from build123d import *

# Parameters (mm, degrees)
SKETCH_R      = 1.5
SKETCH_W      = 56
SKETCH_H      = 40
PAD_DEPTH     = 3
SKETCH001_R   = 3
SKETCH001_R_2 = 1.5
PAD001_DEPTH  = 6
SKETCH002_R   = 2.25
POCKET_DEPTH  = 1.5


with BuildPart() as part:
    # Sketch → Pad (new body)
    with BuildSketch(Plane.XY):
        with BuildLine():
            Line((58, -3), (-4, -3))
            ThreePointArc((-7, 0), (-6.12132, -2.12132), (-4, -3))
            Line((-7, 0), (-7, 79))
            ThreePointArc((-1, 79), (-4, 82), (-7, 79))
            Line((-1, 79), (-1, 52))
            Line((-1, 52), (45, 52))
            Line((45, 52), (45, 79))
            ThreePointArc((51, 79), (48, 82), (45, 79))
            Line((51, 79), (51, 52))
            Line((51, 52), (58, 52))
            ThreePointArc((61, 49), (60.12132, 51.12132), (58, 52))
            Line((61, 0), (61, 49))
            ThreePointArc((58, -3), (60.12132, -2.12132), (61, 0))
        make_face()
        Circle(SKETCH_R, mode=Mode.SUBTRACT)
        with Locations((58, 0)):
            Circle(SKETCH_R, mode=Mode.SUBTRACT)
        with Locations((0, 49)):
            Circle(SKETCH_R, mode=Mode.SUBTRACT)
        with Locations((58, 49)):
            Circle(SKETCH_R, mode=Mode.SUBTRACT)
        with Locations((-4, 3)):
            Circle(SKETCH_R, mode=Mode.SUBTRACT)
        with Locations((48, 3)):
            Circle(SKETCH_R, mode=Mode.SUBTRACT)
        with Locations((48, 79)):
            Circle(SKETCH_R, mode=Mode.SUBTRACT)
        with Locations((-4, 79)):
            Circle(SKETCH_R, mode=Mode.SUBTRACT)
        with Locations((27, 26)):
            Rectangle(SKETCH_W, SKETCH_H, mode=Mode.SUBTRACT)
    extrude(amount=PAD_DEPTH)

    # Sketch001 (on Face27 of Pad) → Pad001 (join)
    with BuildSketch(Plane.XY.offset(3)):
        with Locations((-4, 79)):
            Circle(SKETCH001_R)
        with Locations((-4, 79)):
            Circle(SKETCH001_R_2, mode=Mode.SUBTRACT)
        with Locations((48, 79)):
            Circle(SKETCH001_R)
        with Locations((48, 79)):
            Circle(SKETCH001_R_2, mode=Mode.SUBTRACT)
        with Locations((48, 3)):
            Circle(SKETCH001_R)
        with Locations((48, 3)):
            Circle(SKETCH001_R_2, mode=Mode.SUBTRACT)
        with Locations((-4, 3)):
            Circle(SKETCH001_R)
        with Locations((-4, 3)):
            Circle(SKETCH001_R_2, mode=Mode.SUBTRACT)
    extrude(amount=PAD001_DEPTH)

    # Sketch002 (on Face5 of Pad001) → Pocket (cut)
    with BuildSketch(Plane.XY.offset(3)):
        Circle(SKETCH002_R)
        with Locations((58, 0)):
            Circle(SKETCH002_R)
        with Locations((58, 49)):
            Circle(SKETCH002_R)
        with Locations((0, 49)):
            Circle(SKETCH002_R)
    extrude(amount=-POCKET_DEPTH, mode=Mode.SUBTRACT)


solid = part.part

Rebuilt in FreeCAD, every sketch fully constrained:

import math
import FreeCAD as App
import Part
import Sketcher
from FreeCAD import Vector


def add_polygon(sketch, points):
    """Adds a closed chain of lines whose ends are joined by coincident constraints."""
    first, n = sketch.GeometryCount, len(points)
    for a, b in zip(points, points[1:] + points[:1]):
        sketch.addGeometry(Part.LineSegment(App.Vector(*a, 0), App.Vector(*b, 0)), False)
    for i in range(n):
        sketch.addConstraint(Sketcher.Constraint("Coincident", first + i, 2, first + (i + 1) % n, 1))

doc = App.newDocument("Part")
body = doc.addObject("PartDesign::Body", "Body")

# Sketch on XY plane
sketch1 = body.newObject("Sketcher::SketchObject", "Sketch")
sketch1.AttachmentSupport = (doc.getObject("XY_Plane"), [""])
sketch1.MapMode = "FlatFace"
sketch1.addGeometry(Part.LineSegment(Vector(-4, -3, 0), Vector(58, -3, 0)), False)  # 0
sketch1.addGeometry(Part.ArcOfCircle(Part.Circle(Vector(57.999999, 0.000001, 0), Vector(0, 0, 1), 3.000001), math.radians(-89.999978), math.radians(-0.000022)), False)  # 1
sketch1.addGeometry(Part.LineSegment(Vector(61, 0, 0), Vector(61, 49, 0)), False)  # 2
sketch1.addGeometry(Part.ArcOfCircle(Part.Circle(Vector(57.999999, 48.999999, 0), Vector(0, 0, 1), 3.000001), math.radians(0.000022), math.radians(89.999978)), False)  # 3
sketch1.addGeometry(Part.LineSegment(Vector(58, 52, 0), Vector(51, 52, 0)), False)  # 4
sketch1.addGeometry(Part.LineSegment(Vector(51, 52, 0), Vector(51, 79, 0)), False)  # 5
sketch1.addGeometry(Part.ArcOfCircle(Part.Circle(Vector(48, 79, 0), Vector(0, 0, 1), 3), math.radians(0), math.radians(180)), False)  # 6
sketch1.addGeometry(Part.LineSegment(Vector(45, 79, 0), Vector(45, 52, 0)), False)  # 7
sketch1.addGeometry(Part.LineSegment(Vector(45, 52, 0), Vector(-1, 52, 0)), False)  # 8
sketch1.addGeometry(Part.LineSegment(Vector(-1, 52, 0), Vector(-1, 79, 0)), False)  # 9
sketch1.addGeometry(Part.ArcOfCircle(Part.Circle(Vector(-4, 79, 0), Vector(0, 0, 1), 3), math.radians(0), math.radians(180)), False)  # 10
sketch1.addGeometry(Part.LineSegment(Vector(-7, 79, 0), Vector(-7, 0, 0)), False)  # 11
sketch1.addGeometry(Part.ArcOfCircle(Part.Circle(Vector(-3.999999, 0.000001, 0), Vector(0, 0, 1), 3.000001), math.radians(-179.999978), math.radians(-90.000022)), False)  # 12
sketch1.addGeometry(Part.Circle(Vector(58, 0, 0), Vector(0, 0, 1), 1.5), False)  # 13
sketch1.addGeometry(Part.Circle(Vector(48, 3, 0), Vector(0, 0, 1), 1.5), False)  # 14
sketch1.addGeometry(Part.Circle(Vector(0, 0, 0), Vector(0, 0, 1), 1.5), False)  # 15
sketch1.addGeometry(Part.Circle(Vector(-4, 3, 0), Vector(0, 0, 1), 1.5), False)  # 16
add_polygon(sketch1, [(-1, 6), (-1, 46), (55, 46), (55, 6)])  # lines 17-20
sketch1.addGeometry(Part.Circle(Vector(58, 49, 0), Vector(0, 0, 1), 1.5), False)  # 21
sketch1.addGeometry(Part.Circle(Vector(48, 79, 0), Vector(0, 0, 1), 1.5), False)  # 22
sketch1.addGeometry(Part.Circle(Vector(0, 49, 0), Vector(0, 0, 1), 1.5), False)  # 23
sketch1.addGeometry(Part.Circle(Vector(-4, 79, 0), Vector(0, 0, 1), 1.5), False)  # 24
sketch1.addConstraint([
    Sketcher.Constraint("Tangent", 0, 2, 1, 1),
    Sketcher.Constraint("Tangent", 1, 2, 2, 1),
    Sketcher.Constraint("Tangent", 2, 2, 3, 1),
    Sketcher.Constraint("Tangent", 3, 2, 4, 1),
    Sketcher.Constraint("Coincident", 4, 2, 5, 1),
    Sketcher.Constraint("Tangent", 5, 2, 6, 1),
    Sketcher.Constraint("Tangent", 6, 2, 7, 1),
    Sketcher.Constraint("Coincident", 7, 2, 8, 1),
    Sketcher.Constraint("Coincident", 8, 2, 9, 1),
    Sketcher.Constraint("Tangent", 9, 2, 10, 1),
    Sketcher.Constraint("Tangent", 10, 2, 11, 1),
    Sketcher.Constraint("Tangent", 11, 2, 12, 1),
    Sketcher.Constraint("Tangent", 12, 2, 0, 1),
    Sketcher.Constraint("Horizontal", 0),
    Sketcher.Constraint("Vertical", 2),
    Sketcher.Constraint("Horizontal", 4),
    Sketcher.Constraint("Vertical", 5),
    Sketcher.Constraint("Vertical", 7),
    Sketcher.Constraint("Horizontal", 8),
    Sketcher.Constraint("Vertical", 9),
    Sketcher.Constraint("Vertical", 11),
    Sketcher.Constraint("Vertical", 17),
    Sketcher.Constraint("Horizontal", 18),
    Sketcher.Constraint("Vertical", 19),
    Sketcher.Constraint("Horizontal", 20),
    Sketcher.Constraint("Coincident", 15, 3, -1, 1),
    Sketcher.Constraint("Coincident", 13, 3, 1, 3),
    Sketcher.Constraint("Coincident", 21, 3, 3, 3),
    Sketcher.Constraint("Coincident", 22, 3, 6, 3),
    Sketcher.Constraint("Coincident", 24, 3, 10, 3),
    Sketcher.Constraint("Equal", 1, 3),
    Sketcher.Constraint("Equal", 3, 6),
    Sketcher.Constraint("Equal", 6, 10),
    Sketcher.Constraint("Equal", 10, 12),
    Sketcher.Constraint("Equal", 13, 14),
    Sketcher.Constraint("Equal", 14, 15),
    Sketcher.Constraint("Equal", 15, 16),
    Sketcher.Constraint("Equal", 16, 21),
    Sketcher.Constraint("Equal", 21, 22),
    Sketcher.Constraint("Equal", 22, 23),
    Sketcher.Constraint("Equal", 23, 24),
    Sketcher.Constraint("PointOnObject", 1, 3, -1),
    Sketcher.Constraint("PointOnObject", 23, 3, -2),
    Sketcher.Constraint("Horizontal", 6, 3, 10, 3),
    Sketcher.Constraint("Horizontal", 14, 3, 16, 3),
    Sketcher.Constraint("Horizontal", 21, 3, 23, 3),
    Sketcher.Constraint("Horizontal", 4, 2, 7, 2),
    Sketcher.Constraint("Vertical", 6, 3, 14, 3),
    Sketcher.Constraint("Vertical", 12, 3, 16, 3),
    Sketcher.Constraint("Vertical", 9, 2, 17, 2),
    Sketcher.Constraint("Diameter", 13, 3.0),
    Sketcher.Constraint("Radius", 1, 3.000001),
    Sketcher.Constraint("DistanceX", 0, 1, 0, 2, 62.0),
    Sketcher.Constraint("DistanceX", 4, 2, 4, 1, 7.0),
    Sketcher.Constraint("DistanceX", 18, 1, 18, 2, 56.0),
    Sketcher.Constraint("DistanceY", 2, 1, 2, 2, 49.0),
    Sketcher.Constraint("DistanceY", 5, 1, 5, 2, 27.0),
    Sketcher.Constraint("DistanceY", 17, 1, 17, 2, 40.0),
    Sketcher.Constraint("DistanceX", -1, 1, 1, 3, 57.999999),
    Sketcher.Constraint("DistanceY", -1, 1, 14, 3, 3.0),
    Sketcher.Constraint("DistanceY", -1, 1, 17, 2, 46.0),
])
pad1 = body.newObject("PartDesign::Pad", "Pad")
pad1.Profile = sketch1
pad1.Length = 3

# Sketch on XY plane
sketch2 = body.newObject("Sketcher::SketchObject", "Sketch001")
sketch2.AttachmentSupport = (doc.getObject("XY_Plane"), [""])
sketch2.MapMode = "FlatFace"
sketch2.AttachmentOffset = App.Placement(Vector(0, 0, 3), App.Rotation())
sketch2.addGeometry([
    Part.Circle(Vector(-4, 79, 0), Vector(0, 0, 1), 3),  # 0
    Part.Circle(Vector(-4, 79, 0), Vector(0, 0, 1), 1.5),  # 1
    Part.Circle(Vector(48, 79, 0), Vector(0, 0, 1), 3),  # 2
    Part.Circle(Vector(48, 79, 0), Vector(0, 0, 1), 1.5),  # 3
    Part.Circle(Vector(48, 3, 0), Vector(0, 0, 1), 3),  # 4
    Part.Circle(Vector(48, 3, 0), Vector(0, 0, 1), 1.5),  # 5
    Part.Circle(Vector(-4, 3, 0), Vector(0, 0, 1), 3),  # 6
    Part.Circle(Vector(-4, 3, 0), Vector(0, 0, 1), 1.5),  # 7
], False)
sketch2.addConstraint([
    Sketcher.Constraint("Coincident", 1, 3, 0, 3),
    Sketcher.Constraint("Coincident", 3, 3, 2, 3),
    Sketcher.Constraint("Coincident", 5, 3, 4, 3),
    Sketcher.Constraint("Coincident", 7, 3, 6, 3),
    Sketcher.Constraint("Equal", 0, 2),
    Sketcher.Constraint("Equal", 1, 3),
    Sketcher.Constraint("Equal", 2, 4),
    Sketcher.Constraint("Equal", 3, 5),
    Sketcher.Constraint("Equal", 4, 6),
    Sketcher.Constraint("Equal", 5, 7),
    Sketcher.Constraint("Horizontal", 1, 3, 2, 3),
    Sketcher.Constraint("Horizontal", 5, 3, 6, 3),
    Sketcher.Constraint("Vertical", 3, 3, 4, 3),
    Sketcher.Constraint("Vertical", 1, 3, 6, 3),
    Sketcher.Constraint("Diameter", 0, 6.0),
    Sketcher.Constraint("Diameter", 1, 3.0),
    Sketcher.Constraint("DistanceX", 0, 3, -1, 1, 4.0),
    Sketcher.Constraint("DistanceY", -1, 1, 0, 3, 79.0),
    Sketcher.Constraint("DistanceX", -1, 1, 2, 3, 48.0),
    Sketcher.Constraint("DistanceY", -1, 1, 4, 3, 3.0),
])
pad2 = body.newObject("PartDesign::Pad", "Pad001")
pad2.Profile = sketch2
pad2.Length = 6

# Sketch on XY plane
sketch3 = body.newObject("Sketcher::SketchObject", "Sketch002")
sketch3.AttachmentSupport = (doc.getObject("XY_Plane"), [""])
sketch3.MapMode = "FlatFace"
sketch3.AttachmentOffset = App.Placement(Vector(0, 0, 3), App.Rotation())
sketch3.addGeometry([
    Part.Circle(Vector(0, 0, 0), Vector(0, 0, 1), 2.25),
    Part.Circle(Vector(58, 0, 0), Vector(0, 0, 1), 2.25),
    Part.Circle(Vector(58, 49, 0), Vector(0, 0, 1), 2.25),
    Part.Circle(Vector(0, 49, 0), Vector(0, 0, 1), 2.25),
], False)
sketch3.addConstraint([
    Sketcher.Constraint("Coincident", 0, 3, -1, 1),
    Sketcher.Constraint("Equal", 0, 1),
    Sketcher.Constraint("Equal", 1, 2),
    Sketcher.Constraint("Equal", 2, 3),
    Sketcher.Constraint("PointOnObject", 1, 3, -1),
    Sketcher.Constraint("PointOnObject", 3, 3, -2),
    Sketcher.Constraint("Horizontal", 2, 3, 3, 3),
    Sketcher.Constraint("Vertical", 1, 3, 2, 3),
    Sketcher.Constraint("Diameter", 0, 4.5),
    Sketcher.Constraint("DistanceX", -1, 1, 1, 3, 58.0),
    Sketcher.Constraint("DistanceY", -1, 1, 2, 3, 49.0),
])
pocket1 = body.newObject("PartDesign::Pocket", "Pocket")
pocket1.Profile = sketch3
pocket1.Length = 1.5

doc.recompute()
